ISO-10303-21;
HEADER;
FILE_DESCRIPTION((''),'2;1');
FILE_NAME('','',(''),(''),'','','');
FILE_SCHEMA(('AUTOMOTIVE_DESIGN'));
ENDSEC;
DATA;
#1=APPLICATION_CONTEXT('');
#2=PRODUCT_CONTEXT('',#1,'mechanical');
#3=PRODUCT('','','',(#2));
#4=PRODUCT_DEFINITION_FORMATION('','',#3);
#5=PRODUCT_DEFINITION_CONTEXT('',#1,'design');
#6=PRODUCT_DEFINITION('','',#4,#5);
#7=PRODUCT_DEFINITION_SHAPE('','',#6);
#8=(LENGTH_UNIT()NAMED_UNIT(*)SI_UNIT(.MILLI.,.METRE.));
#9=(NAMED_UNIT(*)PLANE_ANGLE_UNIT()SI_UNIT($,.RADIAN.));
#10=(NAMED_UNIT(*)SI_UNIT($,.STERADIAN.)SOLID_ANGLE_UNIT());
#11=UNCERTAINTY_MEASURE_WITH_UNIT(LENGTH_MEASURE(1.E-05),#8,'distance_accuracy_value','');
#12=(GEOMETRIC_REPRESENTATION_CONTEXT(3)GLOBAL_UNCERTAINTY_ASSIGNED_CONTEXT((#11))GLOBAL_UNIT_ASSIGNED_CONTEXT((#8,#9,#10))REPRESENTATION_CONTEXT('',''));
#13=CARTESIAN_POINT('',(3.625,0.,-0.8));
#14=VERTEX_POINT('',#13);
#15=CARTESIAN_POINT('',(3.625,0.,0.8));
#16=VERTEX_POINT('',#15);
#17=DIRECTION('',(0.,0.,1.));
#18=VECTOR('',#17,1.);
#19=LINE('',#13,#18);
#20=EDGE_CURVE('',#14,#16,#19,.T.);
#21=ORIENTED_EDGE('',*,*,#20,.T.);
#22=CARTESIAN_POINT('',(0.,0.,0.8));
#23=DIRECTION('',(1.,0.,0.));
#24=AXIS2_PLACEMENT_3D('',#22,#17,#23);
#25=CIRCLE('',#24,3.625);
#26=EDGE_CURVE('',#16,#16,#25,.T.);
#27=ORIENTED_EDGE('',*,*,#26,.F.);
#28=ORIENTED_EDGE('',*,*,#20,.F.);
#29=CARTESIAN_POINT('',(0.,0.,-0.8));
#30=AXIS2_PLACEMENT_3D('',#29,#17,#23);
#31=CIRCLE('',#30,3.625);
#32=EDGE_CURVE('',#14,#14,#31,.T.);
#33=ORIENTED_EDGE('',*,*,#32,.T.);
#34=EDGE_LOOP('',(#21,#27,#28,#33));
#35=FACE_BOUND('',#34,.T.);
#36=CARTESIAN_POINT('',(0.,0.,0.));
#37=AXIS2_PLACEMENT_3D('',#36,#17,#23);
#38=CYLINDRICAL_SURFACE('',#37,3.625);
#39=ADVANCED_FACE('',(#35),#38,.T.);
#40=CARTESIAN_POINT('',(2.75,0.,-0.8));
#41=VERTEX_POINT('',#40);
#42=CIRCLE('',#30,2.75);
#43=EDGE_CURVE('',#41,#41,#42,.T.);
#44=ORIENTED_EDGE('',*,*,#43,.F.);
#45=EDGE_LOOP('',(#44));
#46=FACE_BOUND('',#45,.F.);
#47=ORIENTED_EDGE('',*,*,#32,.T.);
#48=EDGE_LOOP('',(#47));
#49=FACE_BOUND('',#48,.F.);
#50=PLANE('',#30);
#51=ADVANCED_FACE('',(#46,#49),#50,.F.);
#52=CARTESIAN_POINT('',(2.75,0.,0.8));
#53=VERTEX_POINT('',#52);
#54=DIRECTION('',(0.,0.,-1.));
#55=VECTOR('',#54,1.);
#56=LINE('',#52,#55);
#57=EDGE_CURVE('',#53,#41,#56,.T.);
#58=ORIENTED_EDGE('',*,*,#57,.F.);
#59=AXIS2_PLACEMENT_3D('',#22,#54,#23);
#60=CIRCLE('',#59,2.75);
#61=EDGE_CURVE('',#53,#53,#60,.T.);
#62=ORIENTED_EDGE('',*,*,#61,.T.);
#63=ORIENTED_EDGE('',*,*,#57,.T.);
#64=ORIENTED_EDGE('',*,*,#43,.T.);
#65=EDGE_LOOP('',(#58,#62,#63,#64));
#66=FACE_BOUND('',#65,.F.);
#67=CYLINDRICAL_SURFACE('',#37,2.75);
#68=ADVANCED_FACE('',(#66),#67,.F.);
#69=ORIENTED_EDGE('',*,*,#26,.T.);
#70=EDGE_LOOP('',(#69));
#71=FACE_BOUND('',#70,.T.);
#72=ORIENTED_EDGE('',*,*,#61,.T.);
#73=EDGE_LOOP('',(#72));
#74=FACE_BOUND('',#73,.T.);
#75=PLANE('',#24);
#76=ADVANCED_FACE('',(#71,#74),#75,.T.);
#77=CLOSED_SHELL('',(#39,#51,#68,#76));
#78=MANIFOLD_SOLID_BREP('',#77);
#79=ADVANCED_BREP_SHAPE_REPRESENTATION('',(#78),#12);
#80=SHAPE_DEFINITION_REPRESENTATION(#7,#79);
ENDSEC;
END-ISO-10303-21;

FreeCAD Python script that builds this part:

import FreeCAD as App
import Part
import Sketcher
Q = App.Units.Quantity

doc = App.newDocument("Part")
body = doc.addObject("PartDesign::Body", "Body")

# Sketch on XY plane
sketch1 = body.newObject("Sketcher::SketchObject", "Sketch")
sketch1.AttachmentSupport = (doc.getObject("XY_Plane"), [""])
sketch1.MapMode = "FlatFace"
sketch1.addGeometry(Part.Circle(App.Vector(0, 0, 0), App.Vector(0, 0, 1), 3.625), False)
sketch1.addConstraint([
    Sketcher.Constraint("Coincident", 0, 3, -1, 1),
    Sketcher.Constraint("Diameter", 0, Q("7.25 mm")),
])
pad1 = body.newObject("PartDesign::Pad", "Pad")
pad1.Profile = sketch1
pad1.Length = 1.6
pad1.Midplane = True

# Sketch on XY plane
sketch2 = body.newObject("Sketcher::SketchObject", "Sketch001")
sketch2.AttachmentSupport = (doc.getObject("XY_Plane"), [""])
sketch2.MapMode = "FlatFace"
sketch2.addGeometry(Part.Circle(App.Vector(0, 0, 0), App.Vector(0, 0, 1), 2.75), False)
sketch2.addConstraint([
    Sketcher.Constraint("Coincident", 0, 3, -1, 1),
    Sketcher.Constraint("Diameter", 0, Q("5.5 mm")),
])
pocket1 = body.newObject("PartDesign::Pocket", "Pocket")
pocket1.Profile = sketch2
pocket1.Type = "ThroughAll"
pocket1.Midplane = True

doc.recompute()
